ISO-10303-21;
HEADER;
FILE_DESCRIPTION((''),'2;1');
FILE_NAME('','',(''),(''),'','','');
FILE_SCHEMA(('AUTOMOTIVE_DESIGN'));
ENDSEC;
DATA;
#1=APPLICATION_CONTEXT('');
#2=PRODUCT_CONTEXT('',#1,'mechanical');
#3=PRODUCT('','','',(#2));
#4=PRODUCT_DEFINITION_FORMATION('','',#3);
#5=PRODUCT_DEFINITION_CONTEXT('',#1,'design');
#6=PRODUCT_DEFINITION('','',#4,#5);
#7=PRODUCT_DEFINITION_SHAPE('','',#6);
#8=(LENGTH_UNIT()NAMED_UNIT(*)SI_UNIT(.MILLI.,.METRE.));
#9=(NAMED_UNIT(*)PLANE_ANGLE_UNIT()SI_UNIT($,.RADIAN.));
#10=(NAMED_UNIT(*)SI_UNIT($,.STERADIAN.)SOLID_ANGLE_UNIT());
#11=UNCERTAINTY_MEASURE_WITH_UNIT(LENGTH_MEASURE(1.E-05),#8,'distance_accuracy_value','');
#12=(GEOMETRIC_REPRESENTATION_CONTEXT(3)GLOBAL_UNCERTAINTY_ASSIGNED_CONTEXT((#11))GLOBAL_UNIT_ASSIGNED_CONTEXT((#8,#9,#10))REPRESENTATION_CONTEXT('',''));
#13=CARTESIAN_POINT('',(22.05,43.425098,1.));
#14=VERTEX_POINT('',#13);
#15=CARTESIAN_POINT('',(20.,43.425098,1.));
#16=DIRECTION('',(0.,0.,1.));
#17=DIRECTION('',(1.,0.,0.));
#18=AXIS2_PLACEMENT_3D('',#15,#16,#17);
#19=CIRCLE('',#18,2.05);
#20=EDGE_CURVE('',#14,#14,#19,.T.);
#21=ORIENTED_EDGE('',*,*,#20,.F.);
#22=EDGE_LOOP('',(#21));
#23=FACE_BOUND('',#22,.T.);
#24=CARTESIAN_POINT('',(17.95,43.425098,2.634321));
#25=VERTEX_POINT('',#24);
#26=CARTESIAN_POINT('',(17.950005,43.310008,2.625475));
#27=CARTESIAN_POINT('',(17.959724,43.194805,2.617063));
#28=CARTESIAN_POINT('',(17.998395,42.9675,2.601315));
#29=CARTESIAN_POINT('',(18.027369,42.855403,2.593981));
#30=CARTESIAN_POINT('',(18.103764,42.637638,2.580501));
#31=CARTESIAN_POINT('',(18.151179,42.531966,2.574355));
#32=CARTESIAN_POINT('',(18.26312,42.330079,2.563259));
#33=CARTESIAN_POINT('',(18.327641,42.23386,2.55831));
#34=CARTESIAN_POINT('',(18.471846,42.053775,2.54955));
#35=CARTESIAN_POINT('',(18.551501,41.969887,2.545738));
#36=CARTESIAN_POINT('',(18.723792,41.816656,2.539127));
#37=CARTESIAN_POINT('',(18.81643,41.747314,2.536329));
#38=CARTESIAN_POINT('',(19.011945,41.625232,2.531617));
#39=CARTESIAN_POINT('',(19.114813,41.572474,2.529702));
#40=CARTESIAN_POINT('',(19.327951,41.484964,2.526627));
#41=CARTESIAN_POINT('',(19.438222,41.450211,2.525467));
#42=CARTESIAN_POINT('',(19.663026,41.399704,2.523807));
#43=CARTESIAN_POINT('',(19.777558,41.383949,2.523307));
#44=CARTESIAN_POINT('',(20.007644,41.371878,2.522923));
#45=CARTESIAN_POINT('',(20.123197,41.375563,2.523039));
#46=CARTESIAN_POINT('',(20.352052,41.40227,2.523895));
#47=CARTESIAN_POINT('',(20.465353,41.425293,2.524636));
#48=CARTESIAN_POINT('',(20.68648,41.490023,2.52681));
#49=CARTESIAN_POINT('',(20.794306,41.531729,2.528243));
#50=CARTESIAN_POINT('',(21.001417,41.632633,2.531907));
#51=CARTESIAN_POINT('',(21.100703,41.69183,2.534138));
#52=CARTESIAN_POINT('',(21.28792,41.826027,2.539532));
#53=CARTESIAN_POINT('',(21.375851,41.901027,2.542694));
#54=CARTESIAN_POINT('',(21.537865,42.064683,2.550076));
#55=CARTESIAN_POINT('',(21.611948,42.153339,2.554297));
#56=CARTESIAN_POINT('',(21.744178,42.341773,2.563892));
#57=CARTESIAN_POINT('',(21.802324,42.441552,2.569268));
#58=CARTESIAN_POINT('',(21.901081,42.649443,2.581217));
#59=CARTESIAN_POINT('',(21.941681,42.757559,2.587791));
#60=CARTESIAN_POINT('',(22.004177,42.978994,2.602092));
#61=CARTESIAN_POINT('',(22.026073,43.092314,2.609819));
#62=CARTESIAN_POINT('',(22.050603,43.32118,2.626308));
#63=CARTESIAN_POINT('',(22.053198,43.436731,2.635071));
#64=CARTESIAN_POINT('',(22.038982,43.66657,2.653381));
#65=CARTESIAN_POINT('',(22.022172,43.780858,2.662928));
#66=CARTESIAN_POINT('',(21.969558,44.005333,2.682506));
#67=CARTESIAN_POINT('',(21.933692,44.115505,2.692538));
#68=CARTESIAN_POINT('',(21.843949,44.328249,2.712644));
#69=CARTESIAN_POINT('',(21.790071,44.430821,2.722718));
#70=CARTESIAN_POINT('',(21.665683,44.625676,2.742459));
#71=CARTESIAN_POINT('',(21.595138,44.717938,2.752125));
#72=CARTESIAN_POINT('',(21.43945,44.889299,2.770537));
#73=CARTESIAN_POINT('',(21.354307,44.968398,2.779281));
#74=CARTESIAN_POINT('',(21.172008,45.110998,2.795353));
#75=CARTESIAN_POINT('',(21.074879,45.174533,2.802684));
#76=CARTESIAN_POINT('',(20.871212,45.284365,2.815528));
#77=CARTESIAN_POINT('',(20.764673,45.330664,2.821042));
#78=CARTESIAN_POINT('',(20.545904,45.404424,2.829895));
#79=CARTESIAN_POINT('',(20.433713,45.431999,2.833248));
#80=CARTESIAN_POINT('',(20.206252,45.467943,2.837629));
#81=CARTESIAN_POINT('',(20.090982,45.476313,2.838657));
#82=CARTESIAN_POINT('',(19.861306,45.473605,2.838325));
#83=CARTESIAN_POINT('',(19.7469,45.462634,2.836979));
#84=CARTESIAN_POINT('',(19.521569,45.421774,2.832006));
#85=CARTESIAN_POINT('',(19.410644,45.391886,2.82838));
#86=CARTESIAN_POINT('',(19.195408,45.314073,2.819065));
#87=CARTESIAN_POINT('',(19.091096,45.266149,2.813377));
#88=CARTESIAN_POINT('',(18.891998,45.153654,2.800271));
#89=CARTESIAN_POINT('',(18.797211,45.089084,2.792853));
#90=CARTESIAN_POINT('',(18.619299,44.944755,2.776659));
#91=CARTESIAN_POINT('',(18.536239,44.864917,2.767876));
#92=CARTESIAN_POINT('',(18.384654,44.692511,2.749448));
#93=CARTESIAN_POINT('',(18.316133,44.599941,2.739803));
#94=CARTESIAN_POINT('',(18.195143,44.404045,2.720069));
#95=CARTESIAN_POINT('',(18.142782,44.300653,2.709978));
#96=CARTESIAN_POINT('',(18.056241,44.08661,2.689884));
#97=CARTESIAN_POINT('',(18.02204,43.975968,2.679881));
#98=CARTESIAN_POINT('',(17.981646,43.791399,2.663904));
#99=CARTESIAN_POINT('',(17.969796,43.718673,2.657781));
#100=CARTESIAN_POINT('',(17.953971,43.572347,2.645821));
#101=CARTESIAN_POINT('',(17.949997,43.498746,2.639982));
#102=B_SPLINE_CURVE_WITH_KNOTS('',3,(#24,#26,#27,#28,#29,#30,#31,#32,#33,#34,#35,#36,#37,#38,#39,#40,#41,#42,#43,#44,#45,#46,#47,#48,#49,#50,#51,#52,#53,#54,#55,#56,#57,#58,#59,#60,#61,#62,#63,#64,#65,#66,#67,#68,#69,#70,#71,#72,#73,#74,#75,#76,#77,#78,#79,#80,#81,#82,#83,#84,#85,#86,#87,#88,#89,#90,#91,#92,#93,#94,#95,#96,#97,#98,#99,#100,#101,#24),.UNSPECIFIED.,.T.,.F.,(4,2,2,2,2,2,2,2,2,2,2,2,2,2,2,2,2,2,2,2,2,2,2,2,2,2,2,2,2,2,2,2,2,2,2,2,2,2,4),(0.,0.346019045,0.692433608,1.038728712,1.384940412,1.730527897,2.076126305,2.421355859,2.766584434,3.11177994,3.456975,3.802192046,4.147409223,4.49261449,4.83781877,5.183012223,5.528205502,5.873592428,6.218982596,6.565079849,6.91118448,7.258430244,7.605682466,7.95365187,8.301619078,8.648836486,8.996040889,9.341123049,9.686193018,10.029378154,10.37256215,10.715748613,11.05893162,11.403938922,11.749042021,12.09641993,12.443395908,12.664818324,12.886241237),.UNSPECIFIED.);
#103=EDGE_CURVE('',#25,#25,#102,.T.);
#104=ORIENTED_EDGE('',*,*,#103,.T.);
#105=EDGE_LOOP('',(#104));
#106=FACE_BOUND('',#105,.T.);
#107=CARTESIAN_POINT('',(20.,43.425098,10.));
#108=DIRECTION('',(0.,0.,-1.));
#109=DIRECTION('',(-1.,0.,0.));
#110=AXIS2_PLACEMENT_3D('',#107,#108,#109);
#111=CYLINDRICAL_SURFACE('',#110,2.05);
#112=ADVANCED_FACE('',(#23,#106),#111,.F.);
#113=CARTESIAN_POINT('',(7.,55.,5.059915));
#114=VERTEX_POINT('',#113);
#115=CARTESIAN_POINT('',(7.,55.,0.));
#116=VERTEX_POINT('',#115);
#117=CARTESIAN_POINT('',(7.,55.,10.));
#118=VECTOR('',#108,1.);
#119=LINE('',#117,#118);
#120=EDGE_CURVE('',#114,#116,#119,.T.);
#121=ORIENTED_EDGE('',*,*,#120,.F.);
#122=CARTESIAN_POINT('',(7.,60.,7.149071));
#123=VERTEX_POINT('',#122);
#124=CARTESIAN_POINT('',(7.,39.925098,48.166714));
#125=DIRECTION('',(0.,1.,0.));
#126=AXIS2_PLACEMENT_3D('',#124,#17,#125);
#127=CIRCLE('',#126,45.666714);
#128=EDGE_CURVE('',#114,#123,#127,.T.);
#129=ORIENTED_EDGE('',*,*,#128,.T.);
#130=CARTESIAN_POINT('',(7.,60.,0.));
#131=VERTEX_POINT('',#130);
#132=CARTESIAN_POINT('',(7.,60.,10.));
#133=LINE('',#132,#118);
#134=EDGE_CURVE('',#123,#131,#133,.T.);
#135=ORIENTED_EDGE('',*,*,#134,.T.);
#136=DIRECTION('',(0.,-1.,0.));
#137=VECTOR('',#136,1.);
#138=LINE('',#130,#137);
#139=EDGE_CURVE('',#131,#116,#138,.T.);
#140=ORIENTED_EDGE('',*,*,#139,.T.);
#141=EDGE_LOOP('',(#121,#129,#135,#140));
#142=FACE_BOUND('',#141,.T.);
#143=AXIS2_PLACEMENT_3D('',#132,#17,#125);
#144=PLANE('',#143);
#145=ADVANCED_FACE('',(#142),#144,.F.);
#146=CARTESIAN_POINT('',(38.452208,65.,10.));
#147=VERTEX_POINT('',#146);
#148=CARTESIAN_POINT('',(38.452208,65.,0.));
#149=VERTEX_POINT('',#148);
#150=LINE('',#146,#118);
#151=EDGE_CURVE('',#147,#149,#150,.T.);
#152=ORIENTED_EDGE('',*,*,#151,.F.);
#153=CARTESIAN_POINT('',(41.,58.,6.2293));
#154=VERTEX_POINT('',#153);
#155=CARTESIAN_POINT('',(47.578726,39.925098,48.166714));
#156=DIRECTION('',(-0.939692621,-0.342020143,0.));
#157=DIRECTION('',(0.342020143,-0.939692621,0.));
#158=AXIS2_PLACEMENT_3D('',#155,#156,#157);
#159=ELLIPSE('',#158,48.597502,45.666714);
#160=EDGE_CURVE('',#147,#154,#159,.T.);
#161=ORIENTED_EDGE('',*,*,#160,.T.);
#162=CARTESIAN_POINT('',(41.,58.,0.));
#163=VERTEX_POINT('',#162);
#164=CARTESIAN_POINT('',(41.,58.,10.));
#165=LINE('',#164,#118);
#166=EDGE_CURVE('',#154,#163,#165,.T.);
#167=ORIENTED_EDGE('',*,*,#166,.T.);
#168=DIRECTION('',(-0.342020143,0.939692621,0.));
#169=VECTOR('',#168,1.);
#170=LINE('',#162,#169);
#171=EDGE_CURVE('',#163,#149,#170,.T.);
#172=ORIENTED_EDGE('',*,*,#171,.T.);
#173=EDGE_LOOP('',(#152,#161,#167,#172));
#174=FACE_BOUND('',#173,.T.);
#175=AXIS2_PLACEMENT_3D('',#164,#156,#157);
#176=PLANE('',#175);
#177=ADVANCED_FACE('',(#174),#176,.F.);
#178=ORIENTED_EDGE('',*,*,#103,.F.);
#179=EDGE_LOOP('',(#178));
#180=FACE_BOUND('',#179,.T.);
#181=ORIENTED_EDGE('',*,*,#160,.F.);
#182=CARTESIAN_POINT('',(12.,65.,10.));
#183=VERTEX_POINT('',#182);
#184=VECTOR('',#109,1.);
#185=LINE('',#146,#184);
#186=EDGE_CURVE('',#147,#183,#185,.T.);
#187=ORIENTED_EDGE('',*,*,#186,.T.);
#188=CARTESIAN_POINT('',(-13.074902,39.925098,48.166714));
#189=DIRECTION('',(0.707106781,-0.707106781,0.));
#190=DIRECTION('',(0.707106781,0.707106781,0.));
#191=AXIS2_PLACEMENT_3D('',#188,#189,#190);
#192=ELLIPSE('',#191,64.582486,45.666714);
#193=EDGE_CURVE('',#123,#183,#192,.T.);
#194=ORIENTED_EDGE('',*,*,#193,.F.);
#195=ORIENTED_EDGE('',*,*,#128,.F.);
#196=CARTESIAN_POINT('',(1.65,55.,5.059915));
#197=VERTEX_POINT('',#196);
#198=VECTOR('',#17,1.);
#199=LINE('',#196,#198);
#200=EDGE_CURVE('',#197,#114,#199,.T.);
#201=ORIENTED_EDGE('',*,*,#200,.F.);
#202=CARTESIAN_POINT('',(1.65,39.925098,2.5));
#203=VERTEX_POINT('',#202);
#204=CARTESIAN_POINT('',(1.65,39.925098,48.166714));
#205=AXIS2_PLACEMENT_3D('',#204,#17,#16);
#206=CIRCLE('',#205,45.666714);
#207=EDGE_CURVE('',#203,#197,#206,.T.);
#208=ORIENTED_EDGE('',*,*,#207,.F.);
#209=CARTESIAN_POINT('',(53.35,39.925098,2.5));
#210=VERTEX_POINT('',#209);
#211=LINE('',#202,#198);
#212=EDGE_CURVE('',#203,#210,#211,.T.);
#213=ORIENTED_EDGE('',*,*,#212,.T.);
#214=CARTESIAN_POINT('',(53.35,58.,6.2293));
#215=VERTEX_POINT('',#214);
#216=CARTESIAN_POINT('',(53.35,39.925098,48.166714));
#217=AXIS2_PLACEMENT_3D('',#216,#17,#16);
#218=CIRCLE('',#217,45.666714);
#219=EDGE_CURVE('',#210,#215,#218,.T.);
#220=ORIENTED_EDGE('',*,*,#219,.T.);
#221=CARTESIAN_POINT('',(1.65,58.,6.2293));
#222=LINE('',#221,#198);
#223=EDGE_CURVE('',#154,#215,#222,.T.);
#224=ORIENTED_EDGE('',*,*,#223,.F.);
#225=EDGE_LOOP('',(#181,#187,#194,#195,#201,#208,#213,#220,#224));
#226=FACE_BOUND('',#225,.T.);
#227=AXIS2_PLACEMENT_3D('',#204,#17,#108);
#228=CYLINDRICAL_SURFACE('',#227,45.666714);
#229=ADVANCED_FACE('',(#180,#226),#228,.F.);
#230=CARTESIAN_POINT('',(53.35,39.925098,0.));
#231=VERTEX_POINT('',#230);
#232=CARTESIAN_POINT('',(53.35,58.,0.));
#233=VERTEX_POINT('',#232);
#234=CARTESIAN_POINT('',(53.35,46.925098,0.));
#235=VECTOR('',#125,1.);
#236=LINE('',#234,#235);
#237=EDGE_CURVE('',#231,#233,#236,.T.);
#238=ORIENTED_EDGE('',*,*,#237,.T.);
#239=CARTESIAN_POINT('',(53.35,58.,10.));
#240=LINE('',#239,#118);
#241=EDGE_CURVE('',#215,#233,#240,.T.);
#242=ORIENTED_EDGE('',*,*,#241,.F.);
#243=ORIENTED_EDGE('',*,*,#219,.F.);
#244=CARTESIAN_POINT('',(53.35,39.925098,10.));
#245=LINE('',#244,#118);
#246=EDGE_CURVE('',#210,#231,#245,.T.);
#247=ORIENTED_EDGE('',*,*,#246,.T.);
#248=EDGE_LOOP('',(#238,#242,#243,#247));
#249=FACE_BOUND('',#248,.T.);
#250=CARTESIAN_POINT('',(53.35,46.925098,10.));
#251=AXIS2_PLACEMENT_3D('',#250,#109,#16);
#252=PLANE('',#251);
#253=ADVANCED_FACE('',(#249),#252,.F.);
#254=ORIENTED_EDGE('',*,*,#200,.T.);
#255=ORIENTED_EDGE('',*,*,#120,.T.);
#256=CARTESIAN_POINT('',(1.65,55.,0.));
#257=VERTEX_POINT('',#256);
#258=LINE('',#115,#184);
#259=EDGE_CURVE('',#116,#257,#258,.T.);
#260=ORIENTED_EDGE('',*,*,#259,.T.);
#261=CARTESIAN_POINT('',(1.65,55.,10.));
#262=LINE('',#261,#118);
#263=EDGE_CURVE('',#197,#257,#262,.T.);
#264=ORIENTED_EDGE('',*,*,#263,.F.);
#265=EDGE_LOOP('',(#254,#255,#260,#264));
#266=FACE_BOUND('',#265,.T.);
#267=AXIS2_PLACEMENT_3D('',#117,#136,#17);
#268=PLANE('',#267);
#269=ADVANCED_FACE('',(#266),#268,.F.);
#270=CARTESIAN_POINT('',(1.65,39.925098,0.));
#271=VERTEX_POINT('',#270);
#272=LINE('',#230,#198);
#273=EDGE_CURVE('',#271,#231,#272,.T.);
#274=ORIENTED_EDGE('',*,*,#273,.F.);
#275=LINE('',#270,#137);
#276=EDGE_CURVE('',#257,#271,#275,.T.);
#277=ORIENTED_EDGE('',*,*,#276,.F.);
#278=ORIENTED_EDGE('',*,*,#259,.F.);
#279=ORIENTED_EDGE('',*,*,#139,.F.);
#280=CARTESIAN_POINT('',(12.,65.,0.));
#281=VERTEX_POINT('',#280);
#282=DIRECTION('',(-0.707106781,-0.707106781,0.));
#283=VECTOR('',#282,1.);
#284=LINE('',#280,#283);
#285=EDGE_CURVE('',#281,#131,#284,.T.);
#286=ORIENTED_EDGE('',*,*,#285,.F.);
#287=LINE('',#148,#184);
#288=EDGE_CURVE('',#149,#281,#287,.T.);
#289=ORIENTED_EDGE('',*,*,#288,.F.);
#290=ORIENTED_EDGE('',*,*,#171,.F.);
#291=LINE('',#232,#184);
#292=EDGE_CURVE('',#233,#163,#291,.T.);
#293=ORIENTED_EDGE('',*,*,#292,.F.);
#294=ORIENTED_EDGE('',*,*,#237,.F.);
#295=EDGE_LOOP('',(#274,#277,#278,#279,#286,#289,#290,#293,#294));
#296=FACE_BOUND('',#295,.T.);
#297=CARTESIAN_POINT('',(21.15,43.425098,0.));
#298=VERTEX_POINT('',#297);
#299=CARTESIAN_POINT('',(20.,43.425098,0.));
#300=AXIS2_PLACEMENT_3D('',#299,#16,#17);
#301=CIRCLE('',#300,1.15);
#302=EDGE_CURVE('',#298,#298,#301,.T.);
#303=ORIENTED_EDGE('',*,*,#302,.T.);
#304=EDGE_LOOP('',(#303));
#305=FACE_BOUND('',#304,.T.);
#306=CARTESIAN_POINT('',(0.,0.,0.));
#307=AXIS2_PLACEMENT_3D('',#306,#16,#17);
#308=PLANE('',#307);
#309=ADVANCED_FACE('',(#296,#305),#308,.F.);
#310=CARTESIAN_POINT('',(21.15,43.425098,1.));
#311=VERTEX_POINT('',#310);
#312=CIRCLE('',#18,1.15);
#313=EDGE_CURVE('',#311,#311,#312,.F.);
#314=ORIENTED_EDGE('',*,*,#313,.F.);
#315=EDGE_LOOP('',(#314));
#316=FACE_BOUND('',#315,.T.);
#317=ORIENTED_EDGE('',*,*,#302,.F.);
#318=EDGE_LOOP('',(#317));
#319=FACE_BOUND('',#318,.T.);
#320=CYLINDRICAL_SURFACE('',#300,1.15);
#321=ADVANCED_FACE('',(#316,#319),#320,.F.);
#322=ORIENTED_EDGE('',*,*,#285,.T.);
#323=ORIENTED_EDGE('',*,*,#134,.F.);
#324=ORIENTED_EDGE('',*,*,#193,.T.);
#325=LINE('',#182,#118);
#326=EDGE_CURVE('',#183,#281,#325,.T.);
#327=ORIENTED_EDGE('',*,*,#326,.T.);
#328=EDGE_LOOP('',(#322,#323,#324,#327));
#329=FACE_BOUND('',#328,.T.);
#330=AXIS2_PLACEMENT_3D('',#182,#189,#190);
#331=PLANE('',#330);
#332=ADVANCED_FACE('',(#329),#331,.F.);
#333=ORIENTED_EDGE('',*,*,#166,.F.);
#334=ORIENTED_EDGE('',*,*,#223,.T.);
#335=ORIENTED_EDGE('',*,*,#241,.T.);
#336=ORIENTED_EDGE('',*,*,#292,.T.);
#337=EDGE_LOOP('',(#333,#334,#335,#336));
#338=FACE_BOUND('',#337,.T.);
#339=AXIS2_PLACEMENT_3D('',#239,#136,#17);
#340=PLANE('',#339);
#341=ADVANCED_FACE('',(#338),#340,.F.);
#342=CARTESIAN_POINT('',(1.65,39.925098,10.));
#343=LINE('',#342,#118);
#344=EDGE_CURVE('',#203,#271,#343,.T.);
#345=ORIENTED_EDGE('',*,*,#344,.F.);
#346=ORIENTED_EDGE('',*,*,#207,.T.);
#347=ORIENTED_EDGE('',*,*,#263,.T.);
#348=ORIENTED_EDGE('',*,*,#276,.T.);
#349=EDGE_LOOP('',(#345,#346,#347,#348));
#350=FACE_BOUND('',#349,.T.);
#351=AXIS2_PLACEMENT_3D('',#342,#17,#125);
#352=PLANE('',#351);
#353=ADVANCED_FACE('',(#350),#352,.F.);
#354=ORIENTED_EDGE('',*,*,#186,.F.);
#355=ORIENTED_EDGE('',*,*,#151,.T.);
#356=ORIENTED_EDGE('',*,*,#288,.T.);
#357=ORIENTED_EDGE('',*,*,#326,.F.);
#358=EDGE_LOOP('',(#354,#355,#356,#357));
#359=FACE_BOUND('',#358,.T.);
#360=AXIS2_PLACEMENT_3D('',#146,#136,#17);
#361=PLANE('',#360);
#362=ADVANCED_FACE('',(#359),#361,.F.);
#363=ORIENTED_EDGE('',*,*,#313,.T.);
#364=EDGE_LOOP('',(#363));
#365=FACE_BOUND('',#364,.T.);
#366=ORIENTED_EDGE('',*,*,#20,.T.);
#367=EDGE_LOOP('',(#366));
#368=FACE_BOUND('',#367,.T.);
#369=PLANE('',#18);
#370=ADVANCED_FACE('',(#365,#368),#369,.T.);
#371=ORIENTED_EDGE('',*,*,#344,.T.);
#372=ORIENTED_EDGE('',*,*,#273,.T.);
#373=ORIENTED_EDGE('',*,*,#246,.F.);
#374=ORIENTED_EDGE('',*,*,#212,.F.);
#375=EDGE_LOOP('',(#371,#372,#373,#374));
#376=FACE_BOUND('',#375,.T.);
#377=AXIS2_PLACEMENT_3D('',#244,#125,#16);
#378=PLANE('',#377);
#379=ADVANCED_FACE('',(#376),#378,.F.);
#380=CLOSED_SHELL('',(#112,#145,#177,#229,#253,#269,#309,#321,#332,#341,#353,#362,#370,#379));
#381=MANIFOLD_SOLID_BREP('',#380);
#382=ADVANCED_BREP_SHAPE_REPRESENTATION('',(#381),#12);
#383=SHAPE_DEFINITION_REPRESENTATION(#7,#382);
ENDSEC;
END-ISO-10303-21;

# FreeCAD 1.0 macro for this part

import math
import FreeCAD as App
import Part
import Sketcher
from FreeCAD import Vector
Q = App.Units.Quantity


def add_polygon(sketch, points):
    """Adds a closed chain of lines whose ends are joined by coincident constraints."""
    first, n = sketch.GeometryCount, len(points)
    for a, b in zip(points, points[1:] + points[:1]):
        sketch.addGeometry(Part.LineSegment(App.Vector(*a, 0), App.Vector(*b, 0)), False)
    for i in range(n):
        sketch.addConstraint(Sketcher.Constraint("Coincident", first + i, 2, first + (i + 1) % n, 1))

doc = App.newDocument("Part")
body = doc.addObject("PartDesign::Body", "Body")

sketch1 = body.newObject("Sketcher::SketchObject", "Sketch")
sketch1.AttachmentSupport = (doc.getObject("XY_Plane"), [""])
sketch1.MapMode = "FlatFace"
add_polygon(sketch1, [(1.65, 39.925098), (53.35, 39.925098), (53.35, 58), (41, 58), (38.452208, 65), (12, 65), (7, 60), (7, 55), (1.65, 55)])
sketch1.addConstraint([
    Sketcher.Constraint("Horizontal", 0),
    Sketcher.Constraint("Vertical", 1),
    Sketcher.Constraint("Horizontal", 2),
    Sketcher.Constraint("Horizontal", 4),
    Sketcher.Constraint("Vertical", 6),
    Sketcher.Constraint("Horizontal", 7),
    Sketcher.Constraint("Vertical", 8),
    Sketcher.Constraint("DistanceY", 6, 2, 6, 1, Q("5 mm")),
    Sketcher.Constraint("Angle", 3, Q("110 deg")),
    Sketcher.Constraint("Angle", 5, Q("-135 deg")),
    Sketcher.Constraint("DistanceX", 0, 1, 0, 2, Q("51.7 mm")),
    Sketcher.Constraint("DistanceY", -1, 1, 1, 2, Q("58 mm")),
    Sketcher.Constraint("DistanceX", -1, 1, 2, 2, Q("41 mm")),
    Sketcher.Constraint("DistanceY", -1, 1, 3, 2, Q("65 mm")),
    Sketcher.Constraint("DistanceX", -1, 1, 4, 2, Q("12 mm")),
    Sketcher.Constraint("DistanceX", -1, 1, 5, 2, Q("7 mm")),
    Sketcher.Constraint("DistanceX", 2, 2, 2, 1, Q("12.35 mm")),
    Sketcher.Constraint("DistanceY", 1, 1, 1, 2, Q("18.074902 mm")),
])
pad1 = body.newObject("PartDesign::Pad", "Pad")
pad1.Profile = sketch1
pad1.Length = 10

sketch2 = body.newObject("Sketcher::SketchObject", "Sketch001")
sketch2.AttachmentSupport = (doc.getObject("XY_Plane"), [""])
sketch2.MapMode = "FlatFace"
sketch2.AttachmentOffset = App.Placement(Vector(0, 0, 10), App.Rotation())
sketch2.addGeometry(Part.Circle(Vector(20, 43.425098, 0), Vector(0, 0, 1), 1.15), False)
sketch2.addConstraint([
    Sketcher.Constraint("Diameter", 0, Q("2.3 mm")),
    Sketcher.Constraint("DistanceX", -1, 1, 0, 3, Q("20 mm")),
    Sketcher.Constraint("DistanceY", -1, 1, 0, 3, Q("43.425098 mm")),
])
pocket1 = body.newObject("PartDesign::Pocket", "Pocket")
pocket1.Profile = sketch2
pocket1.Type = "ThroughAll"

sketch3 = body.newObject("Sketcher::SketchObject", "Sketch002")
sketch3.AttachmentSupport = (doc.getObject("XY_Plane"), [""])
sketch3.MapMode = "FlatFace"
sketch3.AttachmentOffset = App.Placement(Vector(0, 0, 10), App.Rotation())
sketch3.addGeometry(Part.Circle(Vector(20, 43.425098, 0), Vector(0, 0, 1), 2.05), False)
sketch3.addConstraint([
    Sketcher.Constraint("Diameter", 0, Q("4.1 mm")),
    Sketcher.Constraint("DistanceX", -1, 1, 0, 3, Q("20 mm")),
    Sketcher.Constraint("DistanceY", -1, 1, 0, 3, Q("43.425098 mm")),
])
pocket2 = body.newObject("PartDesign::Pocket", "Pocket001")
pocket2.Profile = sketch3
pocket2.Length = 2

sketch4 = body.newObject("Sketcher::SketchObject", "Sketch003")
sketch4.AttachmentSupport = (doc.getObject("YZ_Plane"), [""])
sketch4.MapMode = "FlatFace"
sketch4.AttachmentOffset = App.Placement(Vector(0, 0, 53.35), App.Rotation())
sketch4.addGeometry([
    Part.LineSegment(Vector(65, 10, 0), Vector(39.925098, 48.166714, 0)),
    Part.LineSegment(Vector(39.925098, 48.166714, 0), Vector(39.925098, 2.5, 0)),
    Part.ArcOfCircle(Part.Circle(Vector(39.925098, 48.166714, 0), Vector(0, 0, 1), 45.666714), math.radians(-90), math.radians(-56.695746)),
], False)
sketch4.addConstraint([
    Sketcher.Constraint("Coincident", 0, 2, 1, 1),
    Sketcher.Constraint("Coincident", 1, 2, 2, 1),
    Sketcher.Constraint("Coincident", 2, 2, 0, 1),
    Sketcher.Constraint("Vertical", 1),
    Sketcher.Constraint("Coincident", 0, 2, 2, 3),
    Sketcher.Constraint("DistanceX", -1, 1, 2, 2, Q("65 mm")),
    Sketcher.Constraint("DistanceY", -1, 1, 2, 2, Q("10 mm")),
    Sketcher.Constraint("DistanceY", -1, 1, 1, 2, Q("2.5 mm")),
    Sketcher.Constraint("Radius", 2, Q("45.666714 mm")),
])
pocket3 = body.newObject("PartDesign::Pocket", "Pocket002")
pocket3.Profile = sketch4
pocket3.Type = "ThroughAll"

sketch5 = body.newObject("Sketcher::SketchObject", "Sketch004")
sketch5.AttachmentSupport = (doc.getObject("XY_Plane"), [""])
sketch5.MapMode = "FlatFace"
sketch5.AttachmentOffset = App.Placement(Vector(0, 0, 1), App.Rotation())
sketch5.addGeometry(Part.Circle(Vector(20, 43.425098, 0), Vector(0, 0, 1), 2.05), False)
sketch5.addConstraint([
    Sketcher.Constraint("Diameter", 0, Q("4.1 mm")),
    Sketcher.Constraint("DistanceX", -1, 1, 0, 3, Q("20 mm")),
    Sketcher.Constraint("DistanceY", -1, 1, 0, 3, Q("43.425098 mm")),
])
pocket4 = body.newObject("PartDesign::Pocket", "Pocket003")
pocket4.Profile = sketch5
pocket4.Type = "ThroughAll"
pocket4.Reversed = True

doc.recompute()
